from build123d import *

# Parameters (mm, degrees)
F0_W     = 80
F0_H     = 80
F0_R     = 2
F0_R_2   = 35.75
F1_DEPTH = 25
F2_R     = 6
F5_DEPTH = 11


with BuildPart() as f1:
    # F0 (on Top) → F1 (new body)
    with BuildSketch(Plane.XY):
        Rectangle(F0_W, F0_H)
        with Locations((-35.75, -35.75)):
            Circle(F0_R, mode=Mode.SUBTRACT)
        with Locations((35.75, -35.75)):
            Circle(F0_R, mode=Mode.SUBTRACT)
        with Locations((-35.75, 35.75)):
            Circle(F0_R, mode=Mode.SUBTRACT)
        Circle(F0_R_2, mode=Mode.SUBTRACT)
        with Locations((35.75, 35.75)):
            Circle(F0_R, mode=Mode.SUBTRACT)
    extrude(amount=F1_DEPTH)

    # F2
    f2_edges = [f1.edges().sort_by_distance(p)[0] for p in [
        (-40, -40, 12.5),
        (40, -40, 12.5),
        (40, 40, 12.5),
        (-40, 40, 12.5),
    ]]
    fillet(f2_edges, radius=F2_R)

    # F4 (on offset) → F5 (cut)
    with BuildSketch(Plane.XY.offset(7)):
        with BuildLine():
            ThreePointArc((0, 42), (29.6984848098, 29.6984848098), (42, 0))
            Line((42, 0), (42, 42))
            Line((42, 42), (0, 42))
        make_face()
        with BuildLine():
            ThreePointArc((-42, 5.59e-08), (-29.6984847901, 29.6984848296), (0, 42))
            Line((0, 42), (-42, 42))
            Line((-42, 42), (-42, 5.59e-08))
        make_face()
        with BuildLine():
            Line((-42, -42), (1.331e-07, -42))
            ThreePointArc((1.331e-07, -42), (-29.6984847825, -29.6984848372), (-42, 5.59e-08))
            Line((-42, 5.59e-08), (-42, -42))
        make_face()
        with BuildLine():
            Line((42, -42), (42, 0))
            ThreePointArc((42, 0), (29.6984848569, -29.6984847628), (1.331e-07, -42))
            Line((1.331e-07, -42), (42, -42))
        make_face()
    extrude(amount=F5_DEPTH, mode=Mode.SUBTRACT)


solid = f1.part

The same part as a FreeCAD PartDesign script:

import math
import FreeCAD as App
import Part
import Sketcher
from FreeCAD import Vector


def edges_at(feature, points):
    """Names of the edges that pass closest to the given points."""
    edges = feature.Shape.Edges
    near = lambda p: min(range(len(edges)), key=lambda i: edges[i].distToShape(Part.Vertex(*p))[0])
    return sorted({f"Edge{near(p) + 1}" for p in points})


def add_polygon(sketch, points):
    """Adds a closed chain of lines whose ends are joined by coincident constraints."""
    first, n = sketch.GeometryCount, len(points)
    for a, b in zip(points, points[1:] + points[:1]):
        sketch.addGeometry(Part.LineSegment(App.Vector(*a, 0), App.Vector(*b, 0)), False)
    for i in range(n):
        sketch.addConstraint(Sketcher.Constraint("Coincident", first + i, 2, first + (i + 1) % n, 1))

doc = App.newDocument("Part")
params = doc.addObject("Spreadsheet::Sheet", "Params")
for row, (alias, value) in enumerate([
    ("sketch1_diameter", "4 mm"),
    ("sketch1_diameter2", "71.5 mm"),
    ("sketch1_width", "80 mm"),
    ("pad1_length", "25 mm"),
    ("fillet_radius", "6 mm"),
    ("sketch2_radius", "42 mm"),
    ("pocket1_length", "11 mm"),
], start=1):
    params.set(f"A{row}", alias)
    params.set(f"B{row}", "=" + value)
    params.setAlias(f"B{row}", alias)

body = doc.addObject("PartDesign::Body", "Body")

# Sketch on XY plane
sketch1 = doc.addObject("Sketcher::SketchObject", "Sketch")
body.addObject(sketch1)
sketch1.AttachmentSupport = (doc.XY_Plane, [""])
sketch1.MapMode = "FlatFace"
add_polygon(sketch1, [(-40, 40), (-40, -40), (40, -40), (40, 40)])  # lines 0-3
sketch1.addGeometry(Part.Circle(Vector(-35.8, -35.8, 0), Vector(0, 0, 1), 2), False)  # 4
sketch1.addGeometry(Part.Circle(Vector(35.8, -35.8, 0), Vector(0, 0, 1), 2), False)  # 5
sketch1.addGeometry(Part.Circle(Vector(-35.8, 35.8, 0), Vector(0, 0, 1), 2), False)  # 6
sketch1.addGeometry(Part.Circle(Vector(0, 0, 0), Vector(0, 0, 1), 35.8), False)  # 7
sketch1.addGeometry(Part.Circle(Vector(35.8, 35.8, 0), Vector(0, 0, 1), 2), False)  # 8
sketch1.addConstraint([
    Sketcher.Constraint("Vertical", 0),
    Sketcher.Constraint("Horizontal", 1),
    Sketcher.Constraint("Vertical", 2),
    Sketcher.Constraint("Horizontal", 3),
    Sketcher.Constraint("Coincident", 7, 3, -1, 1),
    Sketcher.Constraint("Equal", 4, 5),
    Sketcher.Constraint("Equal", 5, 6),
    Sketcher.Constraint("Equal", 6, 8),
    Sketcher.Constraint("Symmetric", 5, 3, 6, 3, -1, 1),
    Sketcher.Constraint("Symmetric", 4, 3, 8, 3, -1, 1),
    Sketcher.Constraint("Symmetric", 0, 2, 2, 2, -1, 1),
    Sketcher.Constraint("Symmetric", 4, 3, 5, 3, -2),
    Sketcher.Constraint("Equal", 3, 0),
    Sketcher.Constraint("Diameter", 4, 4.0),
    Sketcher.Constraint("Diameter", 7, 71.5),
    Sketcher.Constraint("DistanceX", 1, 1, 1, 2, 80.0),
    Sketcher.Constraint("DistanceX", 4, 3, 5, 3, 71.5),
    Sketcher.Constraint("DistanceY", 4, 3, 6, 3, 71.5),
])
sketch1.setExpression("Constraints[17]", "Params.sketch1_diameter")
sketch1.setExpression("Constraints[18]", "Params.sketch1_diameter2")
sketch1.setExpression("Constraints[19]", "Params.sketch1_width")
pad1 = doc.addObject("PartDesign::Pad", "Pad")
body.addObject(pad1)
pad1.Profile = sketch1
pad1.setExpression("Length", "Params.pad1_length")
doc.recompute()

fillet = doc.addObject("PartDesign::Fillet", "Fillet")
body.addObject(fillet)
fillet.Base = (pad1, edges_at(pad1, [
    (-40, -40, 12.5),
    (40, -40, 12.5),
    (40, 40, 12.5),
    (-40, 40, 12.5),
]))
fillet.setExpression("Radius", "Params.fillet_radius")

# Sketch on XY plane
sketch2 = doc.addObject("Sketcher::SketchObject", "Sketch001")
body.addObject(sketch2)
sketch2.AttachmentSupport = (doc.XY_Plane, [""])
sketch2.MapMode = "FlatFace"
sketch2.AttachmentOffset = App.Placement(Vector(0, 0, 7), App.Rotation())
sketch2.addGeometry([
    Part.ArcOfCircle(Part.Circle(Vector(0, 0, 0), Vector(0, 0, 1), 42), math.radians(0), math.radians(90)),  # 0
    Part.LineSegment(Vector(42, 0, 0), Vector(42, 42, 0)),  # 1
    Part.LineSegment(Vector(42, 42, 0), Vector(0, 42, 0)),  # 2
    Part.ArcOfCircle(Part.Circle(Vector(0, 0, 0), Vector(0, 0, 1), 42), math.radians(90), math.radians(180)),  # 3
    Part.LineSegment(Vector(0, 42, 0), Vector(-42, 42, 0)),  # 4
    Part.LineSegment(Vector(-42, 42, 0), Vector(-42, 0, 0)),  # 5
    Part.LineSegment(Vector(-42, -42, 0), Vector(0, -42, 0)),  # 6
    Part.ArcOfCircle(Part.Circle(Vector(0, 0, 0), Vector(0, 0, 1), 42), math.radians(180), math.radians(270)),  # 7
    Part.LineSegment(Vector(-42, 0, 0), Vector(-42, -42, 0)),  # 8
    Part.LineSegment(Vector(42, -42, 0), Vector(42, 0, 0)),  # 9
    Part.ArcOfCircle(Part.Circle(Vector(0, 0, 0), Vector(0, 0, 1), 42), math.radians(-90), math.radians(0)),  # 10
    Part.LineSegment(Vector(0, -42, 0), Vector(42, -42, 0)),  # 11
], False)
sketch2.addConstraint([
    Sketcher.Constraint("Tangent", 0, 1, 1, 1),
    Sketcher.Constraint("Coincident", 1, 2, 2, 1),
    Sketcher.Constraint("Tangent", 2, 2, 0, 2),
    Sketcher.Constraint("Tangent", 3, 1, 4, 1),
    Sketcher.Constraint("Coincident", 4, 2, 5, 1),
    Sketcher.Constraint("Tangent", 5, 2, 3, 2),
    Sketcher.Constraint("Tangent", 6, 2, 7, 2),
    Sketcher.Constraint("Tangent", 7, 1, 8, 1),
    Sketcher.Constraint("Coincident", 8, 2, 6, 1),
    Sketcher.Constraint("Tangent", 9, 2, 10, 2),
    Sketcher.Constraint("Tangent", 10, 1, 11, 1),
    Sketcher.Constraint("Coincident", 11, 2, 9, 1),
    Sketcher.Constraint("Vertical", 1),
    Sketcher.Constraint("Horizontal", 2),
    Sketcher.Constraint("Horizontal", 4),
    Sketcher.Constraint("Vertical", 5),
    Sketcher.Constraint("Horizontal", 6),
    Sketcher.Constraint("Vertical", 8),
    Sketcher.Constraint("Vertical", 9),
    Sketcher.Constraint("Horizontal", 11),
    Sketcher.Constraint("Coincident", 0, 3, -1, 1),
    Sketcher.Constraint("Coincident", 3, 3, -1, 1),
    Sketcher.Constraint("Coincident", 7, 3, -1, 1),
    Sketcher.Constraint("Coincident", 10, 3, -1, 1),
    Sketcher.Constraint("Equal", 0, 3),
    Sketcher.Constraint("Equal", 3, 7),
    Sketcher.Constraint("Equal", 7, 10),
    Sketcher.Constraint("Radius", 0, 42.0),
])
sketch2.setExpression("Constraints[27]", "Params.sketch2_radius")
pocket1 = doc.addObject("PartDesign::Pocket", "Pocket")
body.addObject(pocket1)
pocket1.Profile = sketch2
pocket1.setExpression("Length", "Params.pocket1_length")
pocket1.Reversed = True

doc.recompute()
